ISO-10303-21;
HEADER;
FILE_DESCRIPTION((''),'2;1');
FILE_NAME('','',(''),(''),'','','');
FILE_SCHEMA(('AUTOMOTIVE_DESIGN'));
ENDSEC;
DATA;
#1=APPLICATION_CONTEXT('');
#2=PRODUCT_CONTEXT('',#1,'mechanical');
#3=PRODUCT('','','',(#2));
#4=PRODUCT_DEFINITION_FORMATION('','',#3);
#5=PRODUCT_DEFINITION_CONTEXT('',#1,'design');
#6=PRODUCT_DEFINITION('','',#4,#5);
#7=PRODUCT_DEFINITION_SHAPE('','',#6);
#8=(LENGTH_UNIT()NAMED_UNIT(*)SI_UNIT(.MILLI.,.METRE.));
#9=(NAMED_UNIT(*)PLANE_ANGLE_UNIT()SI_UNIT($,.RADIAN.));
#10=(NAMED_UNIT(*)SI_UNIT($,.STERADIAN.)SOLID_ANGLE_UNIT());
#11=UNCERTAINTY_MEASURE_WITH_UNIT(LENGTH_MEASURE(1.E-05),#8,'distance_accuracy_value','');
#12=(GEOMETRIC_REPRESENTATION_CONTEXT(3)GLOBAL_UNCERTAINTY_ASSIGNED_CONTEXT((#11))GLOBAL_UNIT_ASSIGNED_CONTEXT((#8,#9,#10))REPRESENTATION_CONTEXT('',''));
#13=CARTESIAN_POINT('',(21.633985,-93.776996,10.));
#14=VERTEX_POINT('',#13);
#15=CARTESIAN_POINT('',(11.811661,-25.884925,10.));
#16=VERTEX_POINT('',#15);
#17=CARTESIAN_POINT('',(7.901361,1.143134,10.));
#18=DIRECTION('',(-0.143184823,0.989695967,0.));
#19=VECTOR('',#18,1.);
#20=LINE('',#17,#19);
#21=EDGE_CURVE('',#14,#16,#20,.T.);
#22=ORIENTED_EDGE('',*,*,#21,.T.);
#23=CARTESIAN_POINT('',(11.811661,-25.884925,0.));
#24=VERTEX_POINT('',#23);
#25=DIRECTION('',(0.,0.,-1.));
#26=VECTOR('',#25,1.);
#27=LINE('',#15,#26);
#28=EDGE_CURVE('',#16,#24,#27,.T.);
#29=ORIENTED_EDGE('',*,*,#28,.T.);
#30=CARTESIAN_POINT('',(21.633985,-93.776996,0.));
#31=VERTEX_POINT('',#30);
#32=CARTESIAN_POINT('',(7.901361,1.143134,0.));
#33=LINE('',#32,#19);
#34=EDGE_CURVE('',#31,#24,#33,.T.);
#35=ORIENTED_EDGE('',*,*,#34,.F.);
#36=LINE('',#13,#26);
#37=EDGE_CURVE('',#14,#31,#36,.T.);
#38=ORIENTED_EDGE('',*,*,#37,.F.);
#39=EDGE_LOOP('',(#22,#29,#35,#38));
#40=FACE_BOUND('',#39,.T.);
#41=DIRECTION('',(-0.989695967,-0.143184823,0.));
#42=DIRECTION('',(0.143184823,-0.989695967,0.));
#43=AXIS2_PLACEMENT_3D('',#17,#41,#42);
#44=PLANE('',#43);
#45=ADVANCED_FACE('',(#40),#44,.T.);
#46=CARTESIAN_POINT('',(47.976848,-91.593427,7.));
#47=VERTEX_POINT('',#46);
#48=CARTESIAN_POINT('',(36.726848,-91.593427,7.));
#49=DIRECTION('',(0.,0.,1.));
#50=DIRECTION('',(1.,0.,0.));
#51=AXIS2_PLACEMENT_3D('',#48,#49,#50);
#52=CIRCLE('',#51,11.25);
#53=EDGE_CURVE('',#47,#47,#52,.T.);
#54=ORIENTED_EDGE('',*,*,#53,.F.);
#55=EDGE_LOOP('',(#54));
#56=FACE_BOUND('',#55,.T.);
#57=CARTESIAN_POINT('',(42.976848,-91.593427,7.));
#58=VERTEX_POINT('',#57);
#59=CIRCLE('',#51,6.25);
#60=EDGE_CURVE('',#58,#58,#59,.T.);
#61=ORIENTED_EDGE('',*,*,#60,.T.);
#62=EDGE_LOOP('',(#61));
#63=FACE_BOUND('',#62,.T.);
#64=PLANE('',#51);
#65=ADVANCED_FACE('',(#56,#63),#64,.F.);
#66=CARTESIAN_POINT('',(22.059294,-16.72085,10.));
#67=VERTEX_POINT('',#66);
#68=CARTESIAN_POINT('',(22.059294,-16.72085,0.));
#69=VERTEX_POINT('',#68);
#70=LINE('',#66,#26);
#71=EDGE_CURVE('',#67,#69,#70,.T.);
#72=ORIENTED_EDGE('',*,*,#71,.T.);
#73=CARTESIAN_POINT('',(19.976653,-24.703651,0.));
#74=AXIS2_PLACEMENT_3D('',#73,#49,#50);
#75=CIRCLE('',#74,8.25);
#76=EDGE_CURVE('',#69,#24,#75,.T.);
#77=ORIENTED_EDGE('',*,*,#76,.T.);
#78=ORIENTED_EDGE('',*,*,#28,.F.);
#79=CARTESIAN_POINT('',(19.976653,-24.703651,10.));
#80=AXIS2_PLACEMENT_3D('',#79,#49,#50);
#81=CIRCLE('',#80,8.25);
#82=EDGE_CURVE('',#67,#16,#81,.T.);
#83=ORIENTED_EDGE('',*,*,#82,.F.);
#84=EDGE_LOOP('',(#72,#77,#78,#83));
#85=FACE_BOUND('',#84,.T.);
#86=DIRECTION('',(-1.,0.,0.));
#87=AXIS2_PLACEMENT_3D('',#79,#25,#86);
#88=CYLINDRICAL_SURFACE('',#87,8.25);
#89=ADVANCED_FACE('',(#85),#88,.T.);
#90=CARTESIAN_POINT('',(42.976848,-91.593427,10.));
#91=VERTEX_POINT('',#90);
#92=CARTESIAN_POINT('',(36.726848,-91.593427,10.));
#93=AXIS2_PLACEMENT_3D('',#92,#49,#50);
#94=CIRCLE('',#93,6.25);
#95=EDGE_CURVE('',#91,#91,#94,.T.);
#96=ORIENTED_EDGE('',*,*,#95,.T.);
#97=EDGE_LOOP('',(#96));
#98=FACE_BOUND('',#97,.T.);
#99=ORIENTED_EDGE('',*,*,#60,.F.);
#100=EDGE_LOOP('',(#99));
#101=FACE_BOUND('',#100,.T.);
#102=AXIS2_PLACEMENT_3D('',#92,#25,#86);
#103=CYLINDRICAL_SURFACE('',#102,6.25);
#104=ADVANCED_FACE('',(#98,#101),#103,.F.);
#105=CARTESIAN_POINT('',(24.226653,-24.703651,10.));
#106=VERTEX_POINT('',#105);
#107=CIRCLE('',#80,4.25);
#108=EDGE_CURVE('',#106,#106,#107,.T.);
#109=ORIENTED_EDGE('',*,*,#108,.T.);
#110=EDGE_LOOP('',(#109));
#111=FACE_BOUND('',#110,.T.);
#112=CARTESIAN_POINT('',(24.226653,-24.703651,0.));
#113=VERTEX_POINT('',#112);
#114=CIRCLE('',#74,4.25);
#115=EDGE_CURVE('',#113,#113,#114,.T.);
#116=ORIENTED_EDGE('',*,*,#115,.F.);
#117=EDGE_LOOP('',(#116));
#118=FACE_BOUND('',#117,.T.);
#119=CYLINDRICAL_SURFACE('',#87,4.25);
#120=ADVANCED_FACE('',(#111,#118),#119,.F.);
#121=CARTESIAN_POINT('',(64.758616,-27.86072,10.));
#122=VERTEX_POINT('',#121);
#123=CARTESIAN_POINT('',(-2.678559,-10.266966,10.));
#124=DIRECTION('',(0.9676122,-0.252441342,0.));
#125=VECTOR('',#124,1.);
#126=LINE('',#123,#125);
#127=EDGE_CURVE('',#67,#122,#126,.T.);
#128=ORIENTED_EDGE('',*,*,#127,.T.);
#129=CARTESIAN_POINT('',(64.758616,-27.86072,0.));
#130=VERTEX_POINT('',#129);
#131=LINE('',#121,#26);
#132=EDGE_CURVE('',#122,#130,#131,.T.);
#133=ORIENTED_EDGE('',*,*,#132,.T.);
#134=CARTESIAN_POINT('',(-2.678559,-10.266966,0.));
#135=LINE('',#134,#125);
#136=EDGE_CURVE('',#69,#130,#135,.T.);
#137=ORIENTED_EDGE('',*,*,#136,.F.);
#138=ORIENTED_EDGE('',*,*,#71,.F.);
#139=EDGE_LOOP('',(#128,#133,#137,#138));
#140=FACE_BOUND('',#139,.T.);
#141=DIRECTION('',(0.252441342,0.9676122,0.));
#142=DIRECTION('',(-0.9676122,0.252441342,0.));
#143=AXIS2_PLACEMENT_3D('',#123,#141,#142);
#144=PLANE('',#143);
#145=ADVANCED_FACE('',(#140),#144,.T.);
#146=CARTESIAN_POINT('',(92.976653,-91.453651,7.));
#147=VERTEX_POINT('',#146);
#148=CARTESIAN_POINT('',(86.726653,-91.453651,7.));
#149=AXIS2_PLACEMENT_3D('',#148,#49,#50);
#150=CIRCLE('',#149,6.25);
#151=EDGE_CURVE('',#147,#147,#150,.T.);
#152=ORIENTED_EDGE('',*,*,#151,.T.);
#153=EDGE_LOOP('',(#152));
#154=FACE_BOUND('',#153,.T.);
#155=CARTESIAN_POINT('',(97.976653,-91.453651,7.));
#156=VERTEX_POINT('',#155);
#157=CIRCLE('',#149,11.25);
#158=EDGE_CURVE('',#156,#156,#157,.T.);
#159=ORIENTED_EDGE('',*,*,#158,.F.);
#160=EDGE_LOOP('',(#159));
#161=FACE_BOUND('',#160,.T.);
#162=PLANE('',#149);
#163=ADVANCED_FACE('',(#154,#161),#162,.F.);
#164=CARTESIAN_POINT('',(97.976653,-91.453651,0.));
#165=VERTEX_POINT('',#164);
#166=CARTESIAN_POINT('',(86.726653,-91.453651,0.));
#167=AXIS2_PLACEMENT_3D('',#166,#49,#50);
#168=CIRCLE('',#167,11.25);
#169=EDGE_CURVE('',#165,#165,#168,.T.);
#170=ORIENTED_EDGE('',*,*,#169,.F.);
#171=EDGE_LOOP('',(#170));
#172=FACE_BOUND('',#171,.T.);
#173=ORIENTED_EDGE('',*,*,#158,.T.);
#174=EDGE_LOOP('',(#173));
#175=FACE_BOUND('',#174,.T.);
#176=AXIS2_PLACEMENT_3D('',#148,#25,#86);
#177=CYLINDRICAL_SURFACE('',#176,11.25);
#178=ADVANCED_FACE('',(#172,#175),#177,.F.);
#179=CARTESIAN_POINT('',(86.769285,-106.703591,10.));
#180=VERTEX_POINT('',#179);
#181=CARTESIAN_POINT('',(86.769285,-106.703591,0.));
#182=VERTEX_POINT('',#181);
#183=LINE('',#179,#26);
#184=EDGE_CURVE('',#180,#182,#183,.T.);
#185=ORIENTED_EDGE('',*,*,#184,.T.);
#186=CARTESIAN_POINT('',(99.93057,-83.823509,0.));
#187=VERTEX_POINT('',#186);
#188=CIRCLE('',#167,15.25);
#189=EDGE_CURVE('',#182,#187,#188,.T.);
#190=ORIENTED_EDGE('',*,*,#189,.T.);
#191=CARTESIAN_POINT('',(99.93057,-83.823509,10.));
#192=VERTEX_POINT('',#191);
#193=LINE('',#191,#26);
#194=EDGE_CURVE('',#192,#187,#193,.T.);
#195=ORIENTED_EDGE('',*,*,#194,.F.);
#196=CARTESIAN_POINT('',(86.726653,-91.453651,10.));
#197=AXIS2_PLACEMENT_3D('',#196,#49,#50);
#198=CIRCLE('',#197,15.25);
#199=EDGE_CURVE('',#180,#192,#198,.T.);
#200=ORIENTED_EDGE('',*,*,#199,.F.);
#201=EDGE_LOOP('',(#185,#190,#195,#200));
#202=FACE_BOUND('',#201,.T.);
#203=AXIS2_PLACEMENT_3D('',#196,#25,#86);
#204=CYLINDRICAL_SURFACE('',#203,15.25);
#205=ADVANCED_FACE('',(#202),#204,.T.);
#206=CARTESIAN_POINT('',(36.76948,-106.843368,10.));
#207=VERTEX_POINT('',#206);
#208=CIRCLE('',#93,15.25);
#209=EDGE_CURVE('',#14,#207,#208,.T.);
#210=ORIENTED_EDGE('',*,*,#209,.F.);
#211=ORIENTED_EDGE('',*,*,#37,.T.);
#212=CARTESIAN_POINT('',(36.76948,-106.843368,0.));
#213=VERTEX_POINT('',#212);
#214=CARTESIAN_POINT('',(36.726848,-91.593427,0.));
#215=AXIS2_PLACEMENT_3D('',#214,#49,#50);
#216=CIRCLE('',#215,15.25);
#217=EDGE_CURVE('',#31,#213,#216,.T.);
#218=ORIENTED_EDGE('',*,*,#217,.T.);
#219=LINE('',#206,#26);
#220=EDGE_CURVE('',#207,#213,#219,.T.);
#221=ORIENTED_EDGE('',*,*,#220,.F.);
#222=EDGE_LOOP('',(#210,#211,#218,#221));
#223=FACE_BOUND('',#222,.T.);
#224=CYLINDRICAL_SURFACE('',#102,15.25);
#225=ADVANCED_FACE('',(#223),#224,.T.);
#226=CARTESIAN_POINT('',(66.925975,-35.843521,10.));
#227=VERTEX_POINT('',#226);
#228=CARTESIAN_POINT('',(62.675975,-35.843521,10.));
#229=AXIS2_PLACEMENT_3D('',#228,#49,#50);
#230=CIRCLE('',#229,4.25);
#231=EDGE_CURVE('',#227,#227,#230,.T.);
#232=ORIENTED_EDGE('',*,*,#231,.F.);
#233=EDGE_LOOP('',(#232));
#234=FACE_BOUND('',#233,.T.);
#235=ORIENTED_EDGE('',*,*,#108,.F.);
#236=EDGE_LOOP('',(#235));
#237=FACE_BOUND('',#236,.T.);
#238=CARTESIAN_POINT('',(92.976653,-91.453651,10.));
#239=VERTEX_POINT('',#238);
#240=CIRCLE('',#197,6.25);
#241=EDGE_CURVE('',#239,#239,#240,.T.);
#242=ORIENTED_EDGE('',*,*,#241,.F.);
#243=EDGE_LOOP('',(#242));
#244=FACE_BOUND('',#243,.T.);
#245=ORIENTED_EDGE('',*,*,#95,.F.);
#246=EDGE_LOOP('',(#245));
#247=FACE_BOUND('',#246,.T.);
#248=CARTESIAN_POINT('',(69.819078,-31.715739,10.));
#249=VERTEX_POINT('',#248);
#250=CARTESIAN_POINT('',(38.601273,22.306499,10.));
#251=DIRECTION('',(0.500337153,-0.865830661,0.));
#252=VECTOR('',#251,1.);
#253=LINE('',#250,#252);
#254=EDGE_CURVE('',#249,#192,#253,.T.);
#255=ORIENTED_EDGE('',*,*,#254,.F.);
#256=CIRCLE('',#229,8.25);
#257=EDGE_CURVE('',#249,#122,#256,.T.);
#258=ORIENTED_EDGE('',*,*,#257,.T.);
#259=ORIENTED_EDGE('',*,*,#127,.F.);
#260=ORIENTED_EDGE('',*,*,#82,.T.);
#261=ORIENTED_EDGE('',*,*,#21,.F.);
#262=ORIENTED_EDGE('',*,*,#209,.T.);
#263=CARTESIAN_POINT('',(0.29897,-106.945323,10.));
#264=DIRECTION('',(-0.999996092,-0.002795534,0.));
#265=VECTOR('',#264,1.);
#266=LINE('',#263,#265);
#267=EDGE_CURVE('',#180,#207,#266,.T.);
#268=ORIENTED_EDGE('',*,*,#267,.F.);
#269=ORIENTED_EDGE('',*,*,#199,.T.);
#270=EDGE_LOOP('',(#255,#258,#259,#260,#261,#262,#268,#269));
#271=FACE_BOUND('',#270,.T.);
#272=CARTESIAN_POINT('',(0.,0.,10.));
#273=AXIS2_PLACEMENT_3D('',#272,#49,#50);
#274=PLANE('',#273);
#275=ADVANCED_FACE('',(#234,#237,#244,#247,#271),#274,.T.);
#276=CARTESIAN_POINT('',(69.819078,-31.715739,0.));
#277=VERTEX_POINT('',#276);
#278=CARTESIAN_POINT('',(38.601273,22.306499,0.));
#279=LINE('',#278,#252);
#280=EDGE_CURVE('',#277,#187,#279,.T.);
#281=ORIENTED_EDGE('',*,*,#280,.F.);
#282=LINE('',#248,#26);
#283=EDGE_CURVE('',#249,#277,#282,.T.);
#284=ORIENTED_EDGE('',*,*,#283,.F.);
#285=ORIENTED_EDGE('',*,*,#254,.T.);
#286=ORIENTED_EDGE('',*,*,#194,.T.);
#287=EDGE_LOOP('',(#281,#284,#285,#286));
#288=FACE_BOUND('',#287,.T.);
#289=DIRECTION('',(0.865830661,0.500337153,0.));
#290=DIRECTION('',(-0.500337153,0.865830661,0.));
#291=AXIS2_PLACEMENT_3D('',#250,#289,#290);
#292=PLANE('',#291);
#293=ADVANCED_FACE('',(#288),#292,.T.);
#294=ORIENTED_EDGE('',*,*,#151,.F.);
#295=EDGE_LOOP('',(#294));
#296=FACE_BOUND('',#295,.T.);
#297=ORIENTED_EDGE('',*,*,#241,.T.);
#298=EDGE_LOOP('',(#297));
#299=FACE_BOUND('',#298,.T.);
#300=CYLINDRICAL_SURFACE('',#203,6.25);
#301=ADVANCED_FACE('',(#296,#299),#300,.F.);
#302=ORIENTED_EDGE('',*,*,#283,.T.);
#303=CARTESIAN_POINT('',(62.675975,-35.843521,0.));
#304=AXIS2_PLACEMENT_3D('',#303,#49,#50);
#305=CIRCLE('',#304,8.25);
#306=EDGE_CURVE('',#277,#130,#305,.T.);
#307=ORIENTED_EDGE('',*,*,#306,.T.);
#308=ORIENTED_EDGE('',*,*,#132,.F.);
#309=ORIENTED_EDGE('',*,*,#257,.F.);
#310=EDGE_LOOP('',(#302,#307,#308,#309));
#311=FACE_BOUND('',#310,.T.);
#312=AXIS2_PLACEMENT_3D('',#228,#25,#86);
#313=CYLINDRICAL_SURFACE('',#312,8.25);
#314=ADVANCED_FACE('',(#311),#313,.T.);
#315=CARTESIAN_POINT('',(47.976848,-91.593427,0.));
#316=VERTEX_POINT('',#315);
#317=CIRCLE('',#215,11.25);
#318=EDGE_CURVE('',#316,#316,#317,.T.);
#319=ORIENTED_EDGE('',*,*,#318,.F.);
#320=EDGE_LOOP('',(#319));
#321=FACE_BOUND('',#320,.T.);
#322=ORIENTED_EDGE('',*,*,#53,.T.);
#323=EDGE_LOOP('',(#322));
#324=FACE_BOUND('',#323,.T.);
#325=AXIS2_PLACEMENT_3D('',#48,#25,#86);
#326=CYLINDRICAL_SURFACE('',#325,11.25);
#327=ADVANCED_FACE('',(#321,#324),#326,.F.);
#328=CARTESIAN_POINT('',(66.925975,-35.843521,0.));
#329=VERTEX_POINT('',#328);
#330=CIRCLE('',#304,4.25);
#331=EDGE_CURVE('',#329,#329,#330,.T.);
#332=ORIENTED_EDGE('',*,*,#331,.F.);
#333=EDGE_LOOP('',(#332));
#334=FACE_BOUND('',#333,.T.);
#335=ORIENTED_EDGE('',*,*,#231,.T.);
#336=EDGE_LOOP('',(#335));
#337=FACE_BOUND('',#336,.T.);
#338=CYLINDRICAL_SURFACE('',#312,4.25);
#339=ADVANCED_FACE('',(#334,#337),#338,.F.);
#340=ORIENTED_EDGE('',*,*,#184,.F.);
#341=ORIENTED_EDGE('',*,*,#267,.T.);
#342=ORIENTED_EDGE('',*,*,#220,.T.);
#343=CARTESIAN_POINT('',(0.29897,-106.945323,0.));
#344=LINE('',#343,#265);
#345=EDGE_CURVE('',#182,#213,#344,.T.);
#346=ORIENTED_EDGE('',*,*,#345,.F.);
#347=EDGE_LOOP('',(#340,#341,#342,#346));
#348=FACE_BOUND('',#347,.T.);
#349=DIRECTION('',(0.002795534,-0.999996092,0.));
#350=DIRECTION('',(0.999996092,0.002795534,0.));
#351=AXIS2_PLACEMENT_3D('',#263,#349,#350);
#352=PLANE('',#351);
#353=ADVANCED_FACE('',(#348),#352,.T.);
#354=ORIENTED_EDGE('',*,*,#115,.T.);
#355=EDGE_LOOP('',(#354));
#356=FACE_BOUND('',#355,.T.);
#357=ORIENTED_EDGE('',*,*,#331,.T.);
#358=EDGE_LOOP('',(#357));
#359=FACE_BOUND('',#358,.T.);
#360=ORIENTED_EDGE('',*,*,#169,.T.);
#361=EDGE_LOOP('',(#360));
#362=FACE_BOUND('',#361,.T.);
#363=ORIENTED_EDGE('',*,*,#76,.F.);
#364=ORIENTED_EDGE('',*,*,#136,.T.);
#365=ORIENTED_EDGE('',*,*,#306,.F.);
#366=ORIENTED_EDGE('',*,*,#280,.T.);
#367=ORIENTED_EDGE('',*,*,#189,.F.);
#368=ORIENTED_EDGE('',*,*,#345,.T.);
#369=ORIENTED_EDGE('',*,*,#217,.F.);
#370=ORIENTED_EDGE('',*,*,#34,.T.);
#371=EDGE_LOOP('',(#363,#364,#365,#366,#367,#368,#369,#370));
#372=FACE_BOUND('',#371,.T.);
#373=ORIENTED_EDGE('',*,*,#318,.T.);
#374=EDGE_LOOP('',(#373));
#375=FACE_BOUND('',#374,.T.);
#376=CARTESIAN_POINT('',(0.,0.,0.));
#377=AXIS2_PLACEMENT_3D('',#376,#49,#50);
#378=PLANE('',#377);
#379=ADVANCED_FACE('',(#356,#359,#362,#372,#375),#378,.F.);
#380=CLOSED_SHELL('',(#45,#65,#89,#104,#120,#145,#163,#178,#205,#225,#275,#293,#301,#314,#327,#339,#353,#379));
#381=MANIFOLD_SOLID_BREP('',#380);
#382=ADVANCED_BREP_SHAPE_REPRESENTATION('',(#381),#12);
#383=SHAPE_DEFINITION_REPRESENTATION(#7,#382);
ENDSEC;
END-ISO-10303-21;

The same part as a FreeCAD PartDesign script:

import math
import FreeCAD as App
import Part
import Sketcher
from FreeCAD import Vector
Q = App.Units.Quantity

doc = App.newDocument("Part")
body = doc.addObject("PartDesign::Body", "Body")

sketch1 = doc.addObject("Sketcher::SketchObject", "Sketch")
body.addObject(sketch1)
sketch1.AttachmentSupport = (doc.XY_Plane, [""])
sketch1.MapMode = "FlatFace"
sketch1.addGeometry([
    Part.LineSegment(Vector(64.8, -27.9, 0), Vector(22.1, -16.7, 0)),
    Part.ArcOfCircle(Part.Circle(Vector(20, -24.7, 0), Vector(0, 0, 1), 8.2), math.radians(75), math.radians(188)),
    Part.LineSegment(Vector(11.8, -25.9, 0), Vector(21.6, -93.8, 0)),
    Part.ArcOfCircle(Part.Circle(Vector(36.7, -91.6, 0), Vector(0, 0, 1), 15.2), math.radians(-172), math.radians(-90)),
    Part.LineSegment(Vector(36.8, -106.8, 0), Vector(86.8, -106.7, 0)),
    Part.ArcOfCircle(Part.Circle(Vector(86.7, -91.5, 0), Vector(0, 0, 1), 15.2), math.radians(-90), math.radians(30)),
    Part.LineSegment(Vector(99.9, -83.8, 0), Vector(69.8, -31.7, 0)),
    Part.ArcOfCircle(Part.Circle(Vector(62.7, -35.8, 0), Vector(0, 0, 1), 8.2), math.radians(30), math.radians(75)),
    Part.Circle(Vector(20, -24.7, 0), Vector(0, 0, 1), 4.2),
    Part.Circle(Vector(62.7, -35.8, 0), Vector(0, 0, 1), 4.2),
    Part.Circle(Vector(36.7, -91.6, 0), Vector(0, 0, 1), 6.2),
    Part.Circle(Vector(86.7, -91.5, 0), Vector(0, 0, 1), 6.2),
], False)
sketch1.addConstraint([
    Sketcher.Constraint("Tangent", 0, 2, 1, 1),
    Sketcher.Constraint("Tangent", 1, 2, 2, 1),
    Sketcher.Constraint("Tangent", 2, 2, 3, 1),
    Sketcher.Constraint("Tangent", 3, 2, 4, 1),
    Sketcher.Constraint("Tangent", 4, 2, 5, 1),
    Sketcher.Constraint("Tangent", 5, 2, 6, 1),
    Sketcher.Constraint("Tangent", 6, 2, 7, 1),
    Sketcher.Constraint("Tangent", 7, 2, 0, 1),
    Sketcher.Constraint("Coincident", 8, 3, 1, 3),
    Sketcher.Constraint("Coincident", 9, 3, 7, 3),
    Sketcher.Constraint("Coincident", 10, 3, 3, 3),
    Sketcher.Constraint("Coincident", 11, 3, 5, 3),
    Sketcher.Constraint("Equal", 3, 5),
    Sketcher.Constraint("Equal", 1, 7),
    Sketcher.Constraint("Equal", 8, 9),
    Sketcher.Constraint("Equal", 10, 11),
    Sketcher.Constraint("Diameter", 8, Q("8.5 mm")),
    Sketcher.Constraint("Diameter", 10, Q("12.5 mm")),
    Sketcher.Constraint("Radius", 1, Q("8.25 mm")),
    Sketcher.Constraint("Radius", 3, Q("15.25 mm")),
    Sketcher.Constraint("Distance", 4, Q("50 mm")),
    Sketcher.Constraint("DistanceX", 1, 3, 5, 3, Q("66.75 mm")),
    Sketcher.Constraint("DistanceY", 5, 3, 1, 3, Q("66.75 mm")),
    Sketcher.Constraint("DistanceY", 1, 3, 0, 2, Q("7.982801 mm")),
    Sketcher.Constraint("Distance", 0, Q("44.128549 mm")),
    Sketcher.Constraint("DistanceY", 1, 3, -1, 1, Q("24.703651 mm")),
    Sketcher.Constraint("DistanceX", -1, 1, 3, 3, Q("36.726848 mm")),
    Sketcher.Constraint("DistanceX", -1, 1, 3, 2, Q("36.76948 mm")),
])
pad1 = doc.addObject("PartDesign::Pad", "Pad")
body.addObject(pad1)
pad1.Profile = sketch1
pad1.Length = 10

sketch2 = doc.addObject("Sketcher::SketchObject", "Sketch001")
body.addObject(sketch2)
sketch2.AttachmentSupport = (doc.XY_Plane, [""])
sketch2.MapMode = "FlatFace"
sketch2.addGeometry([
    Part.Circle(Vector(87, -91, 0), Vector(0, 0, 1), 11),
    Part.Circle(Vector(37, -92, 0), Vector(0, 0, 1), 11),
], False)
sketch2.addConstraint([
    Sketcher.Constraint("Equal", 0, 1),
    Sketcher.Constraint("Diameter", 0, Q("22.5 mm")),
    Sketcher.Constraint("DistanceY", 0, 3, -1, 1, Q("91.453651 mm")),
    Sketcher.Constraint("DistanceX", -1, 1, 1, 3, Q("36.726848 mm")),
    Sketcher.Constraint("DistanceX", -1, 1, 0, 3, Q("86.726653 mm")),
    Sketcher.Constraint("DistanceY", 1, 3, -1, 1, Q("91.593427 mm")),
])
pocket1 = doc.addObject("PartDesign::Pocket", "Pocket")
body.addObject(pocket1)
pocket1.Profile = sketch2
pocket1.Length = 7
pocket1.Reversed = True

doc.recompute()
